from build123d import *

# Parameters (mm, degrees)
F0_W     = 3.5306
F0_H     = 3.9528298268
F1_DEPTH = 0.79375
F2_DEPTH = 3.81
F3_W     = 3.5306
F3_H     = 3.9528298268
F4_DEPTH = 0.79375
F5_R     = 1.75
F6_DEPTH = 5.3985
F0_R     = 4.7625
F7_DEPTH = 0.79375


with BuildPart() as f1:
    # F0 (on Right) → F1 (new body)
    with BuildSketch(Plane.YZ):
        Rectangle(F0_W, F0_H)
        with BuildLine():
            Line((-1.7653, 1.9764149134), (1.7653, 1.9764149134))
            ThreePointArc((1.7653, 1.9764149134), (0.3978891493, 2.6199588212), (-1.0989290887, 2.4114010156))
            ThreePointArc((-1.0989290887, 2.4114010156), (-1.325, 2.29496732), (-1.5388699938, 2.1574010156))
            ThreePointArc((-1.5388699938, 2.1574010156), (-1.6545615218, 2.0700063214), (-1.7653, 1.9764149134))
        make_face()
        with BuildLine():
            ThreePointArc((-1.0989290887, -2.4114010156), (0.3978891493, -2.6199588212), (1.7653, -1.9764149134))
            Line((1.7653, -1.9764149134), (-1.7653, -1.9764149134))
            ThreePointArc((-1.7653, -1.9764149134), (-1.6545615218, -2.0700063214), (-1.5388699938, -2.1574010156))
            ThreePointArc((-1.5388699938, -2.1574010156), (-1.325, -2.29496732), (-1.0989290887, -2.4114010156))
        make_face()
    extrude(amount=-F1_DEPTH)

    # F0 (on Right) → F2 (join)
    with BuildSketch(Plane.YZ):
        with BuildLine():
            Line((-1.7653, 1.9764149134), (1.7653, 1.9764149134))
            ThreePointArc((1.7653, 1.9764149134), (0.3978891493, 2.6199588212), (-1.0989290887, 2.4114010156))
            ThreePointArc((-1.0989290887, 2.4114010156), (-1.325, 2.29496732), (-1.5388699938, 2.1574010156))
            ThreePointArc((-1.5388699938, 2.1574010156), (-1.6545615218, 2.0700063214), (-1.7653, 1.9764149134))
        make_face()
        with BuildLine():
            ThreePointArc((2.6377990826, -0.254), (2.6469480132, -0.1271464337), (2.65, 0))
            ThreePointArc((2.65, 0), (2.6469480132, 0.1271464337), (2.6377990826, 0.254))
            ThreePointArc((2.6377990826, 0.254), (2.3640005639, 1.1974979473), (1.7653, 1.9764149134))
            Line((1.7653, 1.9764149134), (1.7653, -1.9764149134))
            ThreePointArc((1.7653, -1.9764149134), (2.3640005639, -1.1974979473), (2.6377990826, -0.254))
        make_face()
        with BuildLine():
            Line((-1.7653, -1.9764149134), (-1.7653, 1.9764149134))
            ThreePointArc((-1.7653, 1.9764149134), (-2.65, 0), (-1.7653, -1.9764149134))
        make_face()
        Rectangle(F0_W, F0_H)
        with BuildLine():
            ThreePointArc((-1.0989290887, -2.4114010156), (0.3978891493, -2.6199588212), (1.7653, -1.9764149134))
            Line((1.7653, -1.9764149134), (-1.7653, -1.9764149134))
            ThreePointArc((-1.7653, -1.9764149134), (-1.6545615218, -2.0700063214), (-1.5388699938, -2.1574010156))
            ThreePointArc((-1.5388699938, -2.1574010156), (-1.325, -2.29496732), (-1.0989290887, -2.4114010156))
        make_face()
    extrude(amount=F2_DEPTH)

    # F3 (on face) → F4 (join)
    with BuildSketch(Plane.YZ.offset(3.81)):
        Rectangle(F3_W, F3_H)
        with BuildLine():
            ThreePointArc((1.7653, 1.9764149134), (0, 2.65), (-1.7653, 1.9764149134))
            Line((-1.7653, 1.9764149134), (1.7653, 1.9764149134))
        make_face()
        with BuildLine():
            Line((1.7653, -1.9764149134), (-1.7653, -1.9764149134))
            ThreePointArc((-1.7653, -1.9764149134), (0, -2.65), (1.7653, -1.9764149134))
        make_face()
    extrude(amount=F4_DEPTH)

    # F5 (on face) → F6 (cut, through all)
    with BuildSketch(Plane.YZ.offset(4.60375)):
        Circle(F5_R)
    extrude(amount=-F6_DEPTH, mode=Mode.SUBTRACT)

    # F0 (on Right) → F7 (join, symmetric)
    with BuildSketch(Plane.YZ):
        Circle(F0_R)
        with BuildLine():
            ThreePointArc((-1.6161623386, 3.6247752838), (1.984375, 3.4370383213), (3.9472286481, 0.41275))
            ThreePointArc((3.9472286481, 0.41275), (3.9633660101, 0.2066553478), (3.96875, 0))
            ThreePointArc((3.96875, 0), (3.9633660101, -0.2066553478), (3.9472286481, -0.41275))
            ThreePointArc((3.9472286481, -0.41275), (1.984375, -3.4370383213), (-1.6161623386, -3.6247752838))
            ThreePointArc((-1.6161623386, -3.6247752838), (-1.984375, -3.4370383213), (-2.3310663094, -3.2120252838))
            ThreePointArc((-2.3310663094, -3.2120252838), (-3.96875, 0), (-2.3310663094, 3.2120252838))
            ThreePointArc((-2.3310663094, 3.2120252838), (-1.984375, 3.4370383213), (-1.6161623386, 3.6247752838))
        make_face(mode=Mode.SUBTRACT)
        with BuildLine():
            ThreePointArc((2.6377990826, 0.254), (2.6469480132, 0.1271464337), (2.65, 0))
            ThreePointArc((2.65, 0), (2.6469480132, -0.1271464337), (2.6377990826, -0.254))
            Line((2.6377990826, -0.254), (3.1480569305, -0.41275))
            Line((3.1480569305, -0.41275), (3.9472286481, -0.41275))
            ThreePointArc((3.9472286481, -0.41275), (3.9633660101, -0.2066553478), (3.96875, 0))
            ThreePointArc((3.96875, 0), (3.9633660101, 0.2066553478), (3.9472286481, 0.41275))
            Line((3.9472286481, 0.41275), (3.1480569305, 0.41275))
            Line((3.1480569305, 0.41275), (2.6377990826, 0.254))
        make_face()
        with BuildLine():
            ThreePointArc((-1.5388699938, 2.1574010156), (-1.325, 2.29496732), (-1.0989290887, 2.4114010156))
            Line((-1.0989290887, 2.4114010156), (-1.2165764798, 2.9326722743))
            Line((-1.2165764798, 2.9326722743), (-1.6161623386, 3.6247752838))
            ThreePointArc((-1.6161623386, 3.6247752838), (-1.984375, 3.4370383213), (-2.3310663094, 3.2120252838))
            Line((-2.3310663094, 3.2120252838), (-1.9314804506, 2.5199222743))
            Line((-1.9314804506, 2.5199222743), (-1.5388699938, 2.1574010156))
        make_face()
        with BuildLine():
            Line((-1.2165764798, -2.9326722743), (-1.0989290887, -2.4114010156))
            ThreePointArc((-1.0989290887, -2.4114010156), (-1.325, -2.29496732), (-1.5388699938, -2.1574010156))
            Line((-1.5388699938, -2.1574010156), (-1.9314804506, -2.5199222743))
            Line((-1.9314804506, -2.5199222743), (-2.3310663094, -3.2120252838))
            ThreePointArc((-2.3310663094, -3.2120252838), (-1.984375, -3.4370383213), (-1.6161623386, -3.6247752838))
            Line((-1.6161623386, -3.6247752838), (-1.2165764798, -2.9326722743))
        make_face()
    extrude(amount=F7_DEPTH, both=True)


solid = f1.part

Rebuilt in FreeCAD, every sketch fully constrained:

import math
import FreeCAD as App
import Part
import Sketcher
from FreeCAD import Vector
Q = App.Units.Quantity

doc = App.newDocument("Part")
body = doc.addObject("PartDesign::Body", "Body")

sketch1 = body.newObject("Sketcher::SketchObject", "Sketch")
sketch1.AttachmentSupport = (doc.getObject("YZ_Plane"), [""])
sketch1.MapMode = "FlatFace"
sketch1.addGeometry(Part.LineSegment(Vector(-1.77, 1.98, 0), Vector(-1.77, -1.98, 0)), False)
sketch1.addGeometry(Part.ArcOfCircle(Part.Circle(Vector(0, 0, 0), Vector(0, 0, 1), 2.65), math.radians(-131.77), math.radians(-125.5)), False)
sketch1.addGeometry(Part.ArcOfCircle(Part.Circle(Vector(0, 0, 0), Vector(0, 0, 1), 2.65), math.radians(-125.5), math.radians(-114.5)), False)
sketch1.addGeometry(Part.ArcOfCircle(Part.Circle(Vector(0, 0, 0), Vector(0, 0, 1), 2.65), math.radians(-114), math.radians(-48)), False)
sketch1.addGeometry(Part.LineSegment(Vector(1.77, -1.98, 0), Vector(1.77, 1.98, 0)), False)
sketch1.addGeometry(Part.ArcOfCircle(Part.Circle(Vector(0, 0, 0), Vector(0, 0, 1), 2.65), math.radians(48), math.radians(114)), False)
sketch1.addGeometry(Part.ArcOfCircle(Part.Circle(Vector(0, 0, 0), Vector(0, 0, 1), 2.65), math.radians(114.5), math.radians(125.5)), False)
sketch1.addGeometry(Part.ArcOfCircle(Part.Circle(Vector(0, 0, 0), Vector(0, 0, 1), 2.65), math.radians(125.5), math.radians(131.77)), False)
sketch1.addConstraint(Sketcher.Constraint("Coincident", 0, 2, 1, 1))
sketch1.addConstraint(Sketcher.Constraint("Tangent", 1, 2, 2, 1))
sketch1.addConstraint(Sketcher.Constraint("Tangent", 2, 2, 3, 1))
sketch1.addConstraint(Sketcher.Constraint("Coincident", 3, 2, 4, 1))
sketch1.addConstraint(Sketcher.Constraint("Coincident", 4, 2, 5, 1))
sketch1.addConstraint(Sketcher.Constraint("Tangent", 5, 2, 6, 1))
sketch1.addConstraint(Sketcher.Constraint("Tangent", 6, 2, 7, 1))
sketch1.addConstraint(Sketcher.Constraint("Coincident", 7, 2, 0, 1))
sketch1.addConstraint(Sketcher.Constraint("Vertical", 0))
sketch1.addConstraint(Sketcher.Constraint("Vertical", 4))
sketch1.addConstraint(Sketcher.Constraint("Coincident", 1, 3, -1, 1))
sketch1.addConstraint(Sketcher.Constraint("Coincident", 3, 3, -1, 1))
sketch1.addConstraint(Sketcher.Constraint("Coincident", 5, 3, -1, 1))
sketch1.addConstraint(Sketcher.Constraint("Coincident", 7, 3, -1, 1))
sketch1.addConstraint(Sketcher.Constraint("Equal", 3, 5))
sketch1.addConstraint(Sketcher.Constraint("Horizontal", 0, 2, 3, 2))
sketch1.addConstraint(Sketcher.Constraint("Vertical", 2, 2, 5, 2))
sketch1.addConstraint(Sketcher.Constraint("Vertical", 1, 2, 6, 2))
sketch1.addConstraint(Sketcher.Constraint("Radius", 1, Q("2.65 mm")))
sketch1.addConstraint(Sketcher.Constraint("DistanceY", 2, 2, 1, 2, Q("0.01 in")))
sketch1.addConstraint(Sketcher.Constraint("DistanceX", 0, 2, -1, 1, Q("0.0695 in")))
sketch1.addConstraint(Sketcher.Constraint("DistanceY", 1, 2, -1, 1, Q("2.157401 mm")))
pad1 = body.newObject("PartDesign::Pad", "Pad")
pad1.Profile = sketch1
pad1.Length = Q("0.03125 in")
pad1.Reversed = True

sketch2 = body.newObject("Sketcher::SketchObject", "Sketch001")
sketch2.AttachmentSupport = (doc.getObject("YZ_Plane"), [""])
sketch2.MapMode = "FlatFace"
sketch2.addGeometry(Part.ArcOfCircle(Part.Circle(Vector(0, 0, 0), Vector(0, 0, 1), 2.65), math.radians(48), math.radians(114)), False)
sketch2.addGeometry(Part.ArcOfCircle(Part.Circle(Vector(0, 0, 0), Vector(0, 0, 1), 2.65), math.radians(114.5), math.radians(125.5)), False)
sketch2.addGeometry(Part.ArcOfCircle(Part.Circle(Vector(0, 0, 0), Vector(0, 0, 1), 2.65), math.radians(125.5), math.radians(131.77)), False)
sketch2.addGeometry(Part.ArcOfCircle(Part.Circle(Vector(0, 0, 0), Vector(0, 0, 1), 2.65), math.radians(132), math.radians(228)), False)
sketch2.addGeometry(Part.ArcOfCircle(Part.Circle(Vector(0, 0, 0), Vector(0, 0, 1), 2.65), math.radians(-131.77), math.radians(-125.5)), False)
sketch2.addGeometry(Part.ArcOfCircle(Part.Circle(Vector(0, 0, 0), Vector(0, 0, 1), 2.65), math.radians(-125.5), math.radians(-114.5)), False)
sketch2.addGeometry(Part.ArcOfCircle(Part.Circle(Vector(0, 0, 0), Vector(0, 0, 1), 2.65), math.radians(-114), math.radians(-48)), False)
sketch2.addGeometry(Part.ArcOfCircle(Part.Circle(Vector(0, 0, 0), Vector(0, 0, 1), 2.65), math.radians(-48), math.radians(-6)), False)
sketch2.addGeometry(Part.ArcOfCircle(Part.Circle(Vector(0, 0, 0), Vector(0, 0, 1), 2.65), math.radians(-5.5), math.radians(0)), False)
sketch2.addGeometry(Part.ArcOfCircle(Part.Circle(Vector(0, 0, 0), Vector(0, 0, 1), 2.65), math.radians(0), math.radians(5.5)), False)
sketch2.addGeometry(Part.ArcOfCircle(Part.Circle(Vector(0, 0, 0), Vector(0, 0, 1), 2.65), math.radians(6), math.radians(48)), False)
sketch2.addConstraint(Sketcher.Constraint("Tangent", 0, 2, 1, 1))
sketch2.addConstraint(Sketcher.Constraint("Tangent", 1, 2, 2, 1))
sketch2.addConstraint(Sketcher.Constraint("Tangent", 2, 2, 3, 1))
sketch2.addConstraint(Sketcher.Constraint("Tangent", 3, 2, 4, 1))
sketch2.addConstraint(Sketcher.Constraint("Tangent", 4, 2, 5, 1))
sketch2.addConstraint(Sketcher.Constraint("Tangent", 5, 2, 6, 1))
sketch2.addConstraint(Sketcher.Constraint("Tangent", 6, 2, 7, 1))
sketch2.addConstraint(Sketcher.Constraint("Tangent", 7, 2, 8, 1))
sketch2.addConstraint(Sketcher.Constraint("Tangent", 8, 2, 9, 1))
sketch2.addConstraint(Sketcher.Constraint("Tangent", 9, 2, 10, 1))
sketch2.addConstraint(Sketcher.Constraint("Tangent", 10, 2, 0, 1))
sketch2.addConstraint(Sketcher.Constraint("Coincident", 0, 3, -1, 1))
sketch2.addConstraint(Sketcher.Constraint("Coincident", 2, 3, -1, 1))
sketch2.addConstraint(Sketcher.Constraint("Coincident", 4, 3, -1, 1))
sketch2.addConstraint(Sketcher.Constraint("Coincident", 6, 3, -1, 1))
sketch2.addConstraint(Sketcher.Constraint("Coincident", 8, 3, -1, 1))
sketch2.addConstraint(Sketcher.Constraint("PointOnObject", 8, 2, -1))
sketch2.addConstraint(Sketcher.Constraint("Horizontal", 3, 2, 6, 2))
sketch2.addConstraint(Sketcher.Constraint("Horizontal", 2, 2, 10, 2))
sketch2.addConstraint(Sketcher.Constraint("Vertical", 2, 2, 3, 2))
sketch2.addConstraint(Sketcher.Constraint("Vertical", 1, 2, 4, 2))
sketch2.addConstraint(Sketcher.Constraint("Vertical", 0, 2, 5, 2))
sketch2.addConstraint(Sketcher.Constraint("Vertical", 7, 2, 9, 2))
sketch2.addConstraint(Sketcher.Constraint("DistanceY", 7, 2, -1, 1, Q("0.01 in")))
sketch2.addConstraint(Sketcher.Constraint("Radius", 0, Q("2.65 mm")))
sketch2.addConstraint(Sketcher.Constraint("DistanceY", 1, 2, 0, 2, Q("0.01 in")))
sketch2.addConstraint(Sketcher.Constraint("DistanceX", 2, 2, -1, 1, Q("0.0695 in")))
sketch2.addConstraint(Sketcher.Constraint("DistanceY", -1, 1, 0, 2, Q("2.411401 mm")))
pad2 = body.newObject("PartDesign::Pad", "Pad001")
pad2.Profile = sketch2
pad2.Length = Q("0.15 in")

sketch3 = body.newObject("Sketcher::SketchObject", "Sketch002")
sketch3.AttachmentSupport = (doc.getObject("YZ_Plane"), [""])
sketch3.MapMode = "FlatFace"
sketch3.AttachmentOffset = App.Placement(Vector(0, 0, 0.15 * 25.4), App.Rotation())
sketch3.addGeometry(Part.LineSegment(Vector(-1.8, 2, 0), Vector(-1.8, -2, 0)), False)
sketch3.addGeometry(Part.ArcOfCircle(Part.Circle(Vector(0, 0, 0), Vector(0, 0, 1), 2.6), math.radians(-132), math.radians(-48)), False)
sketch3.addGeometry(Part.LineSegment(Vector(1.8, -2, 0), Vector(1.8, 2, 0)), False)
sketch3.addGeometry(Part.ArcOfCircle(Part.Circle(Vector(0, 0, 0), Vector(0, 0, 1), 2.6), math.radians(48), math.radians(132)), False)
sketch3.addConstraint(Sketcher.Constraint("Coincident", 0, 2, 1, 1))
sketch3.addConstraint(Sketcher.Constraint("Coincident", 1, 2, 2, 1))
sketch3.addConstraint(Sketcher.Constraint("Coincident", 2, 2, 3, 1))
sketch3.addConstraint(Sketcher.Constraint("Coincident", 3, 2, 0, 1))
sketch3.addConstraint(Sketcher.Constraint("Vertical", 0))
sketch3.addConstraint(Sketcher.Constraint("Vertical", 2))
sketch3.addConstraint(Sketcher.Constraint("Coincident", 1, 3, -1, 1))
sketch3.addConstraint(Sketcher.Constraint("Coincident", 3, 3, -1, 1))
sketch3.addConstraint(Sketcher.Constraint("Equal", 1, 3))
sketch3.addConstraint(Sketcher.Constraint("Horizontal", 0, 2, 1, 2))
sketch3.addConstraint(Sketcher.Constraint("Radius", 1, Q("2.65 mm")))
sketch3.addConstraint(Sketcher.Constraint("DistanceX", 0, 2, 1, 2, Q("0.139 in")))
pad3 = body.newObject("PartDesign::Pad", "Pad002")
pad3.Profile = sketch3
pad3.Length = Q("0.03125 in")

sketch4 = body.newObject("Sketcher::SketchObject", "Sketch003")
sketch4.AttachmentSupport = (doc.getObject("YZ_Plane"), [""])
sketch4.MapMode = "FlatFace"
sketch4.AttachmentOffset = App.Placement(Vector(0, 0, 4.60375), App.Rotation())
sketch4.addGeometry(Part.Circle(Vector(0, 0, 0), Vector(0, 0, 1), 1.8), False)
sketch4.addConstraint(Sketcher.Constraint("Coincident", 0, 3, -1, 1))
sketch4.addConstraint(Sketcher.Constraint("Diameter", 0, Q("3.5 mm")))
pocket1 = body.newObject("PartDesign::Pocket", "Pocket")
pocket1.Profile = sketch4
pocket1.Type = "ThroughAll"

sketch5 = body.newObject("Sketcher::SketchObject", "Sketch004")
sketch5.AttachmentSupport = (doc.getObject("YZ_Plane"), [""])
sketch5.MapMode = "FlatFace"
sketch5.addGeometry(Part.Circle(Vector(0, 0, 0), Vector(0, 0, 1), 4.76), False)
sketch5.addGeometry(Part.ArcOfCircle(Part.Circle(Vector(0, 0, 0), Vector(0, 0, 1), 3.97), math.radians(6), math.radians(114)), False)
sketch5.addGeometry(Part.LineSegment(Vector(3.95, 0.41, 0), Vector(3.15, 0.41, 0)), False)
sketch5.addGeometry(Part.LineSegment(Vector(3.15, 0.41, 0), Vector(2.64, 0.25, 0)), False)
sketch5.addGeometry(Part.ArcOfCircle(Part.Circle(Vector(0, 0, 0), Vector(0, 0, 1), 2.65), math.radians(0), math.radians(5.5)), False)
sketch5.addGeometry(Part.ArcOfCircle(Part.Circle(Vector(0, 0, 0), Vector(0, 0, 1), 2.65), math.radians(-5.5), math.radians(0)), False)
sketch5.addGeometry(Part.LineSegment(Vector(2.64, -0.25, 0), Vector(3.15, -0.41, 0)), False)
sketch5.addGeometry(Part.LineSegment(Vector(3.15, -0.41, 0), Vector(3.95, -0.41, 0)), False)
sketch5.addGeometry(Part.ArcOfCircle(Part.Circle(Vector(0, 0, 0), Vector(0, 0, 1), 3.97), math.radians(-114), math.radians(-6)), False)
sketch5.addGeometry(Part.LineSegment(Vector(-1.62, -3.62, 0), Vector(-1.22, -2.93, 0)), False)
sketch5.addGeometry(Part.LineSegment(Vector(-1.22, -2.93, 0), Vector(-1.1, -2.41, 0)), False)
sketch5.addGeometry(Part.ArcOfCircle(Part.Circle(Vector(0, 0, 0), Vector(0, 0, 1), 2.65), math.radians(-125.5), math.radians(-114.5)), False)
sketch5.addGeometry(Part.LineSegment(Vector(-1.54, -2.16, 0), Vector(-1.93, -2.52, 0)), False)
sketch5.addGeometry(Part.LineSegment(Vector(-1.93, -2.52, 0), Vector(-2.33, -3.21, 0)), False)
sketch5.addGeometry(Part.ArcOfCircle(Part.Circle(Vector(0, 0, 0), Vector(0, 0, 1), 3.97), math.radians(126), math.radians(234)), False)
sketch5.addGeometry(Part.LineSegment(Vector(-2.33, 3.21, 0), Vector(-1.93, 2.52, 0)), False)
sketch5.addGeometry(Part.LineSegment(Vector(-1.93, 2.52, 0), Vector(-1.54, 2.16, 0)), False)
sketch5.addGeometry(Part.ArcOfCircle(Part.Circle(Vector(0, 0, 0), Vector(0, 0, 1), 2.65), math.radians(114.5), math.radians(125.5)), False)
sketch5.addGeometry(Part.LineSegment(Vector(-1.1, 2.41, 0), Vector(-1.22, 2.93, 0)), False)
sketch5.addGeometry(Part.LineSegment(Vector(-1.22, 2.93, 0), Vector(-1.62, 3.62, 0)), False)
sketch5.addConstraint(Sketcher.Constraint("Coincident", 1, 1, 2, 1))
sketch5.addConstraint(Sketcher.Constraint("Coincident", 2, 2, 3, 1))
sketch5.addConstraint(Sketcher.Constraint("Coincident", 3, 2, 4, 2))
sketch5.addConstraint(Sketcher.Constraint("Tangent", 4, 1, 5, 2))
sketch5.addConstraint(Sketcher.Constraint("Coincident", 5, 1, 6, 1))
sketch5.addConstraint(Sketcher.Constraint("Coincident", 6, 2, 7, 1))
sketch5.addConstraint(Sketcher.Constraint("Coincident", 7, 2, 8, 2))
sketch5.addConstraint(Sketcher.Constraint("Coincident", 8, 1, 9, 1))
sketch5.addConstraint(Sketcher.Constraint("Coincident", 9, 2, 10, 1))
sketch5.addConstraint(Sketcher.Constraint("Coincident", 10, 2, 11, 2))
sketch5.addConstraint(Sketcher.Constraint("Coincident", 11, 1, 12, 1))
sketch5.addConstraint(Sketcher.Constraint("Coincident", 12, 2, 13, 1))
sketch5.addConstraint(Sketcher.Constraint("Coincident", 13, 2, 14, 2))
sketch5.addConstraint(Sketcher.Constraint("Coincident", 14, 1, 15, 1))
sketch5.addConstraint(Sketcher.Constraint("Coincident", 15, 2, 16, 1))
sketch5.addConstraint(Sketcher.Constraint("Coincident", 16, 2, 17, 2))
sketch5.addConstraint(Sketcher.Constraint("Coincident", 17, 1, 18, 1))
sketch5.addConstraint(Sketcher.Constraint("Coincident", 18, 2, 19, 1))
sketch5.addConstraint(Sketcher.Constraint("Coincident", 19, 2, 1, 2))
sketch5.addConstraint(Sketcher.Constraint("Horizontal", 2))
sketch5.addConstraint(Sketcher.Constraint("Horizontal", 7))
sketch5.addConstraint(Sketcher.Constraint("Coincident", 0, 3, -1, 1))
sketch5.addConstraint(Sketcher.Constraint("Coincident", 1, 3, -1, 1))
sketch5.addConstraint(Sketcher.Constraint("Coincident", 4, 3, -1, 1))
sketch5.addConstraint(Sketcher.Constraint("Coincident", 8, 3, -1, 1))
sketch5.addConstraint(Sketcher.Constraint("Coincident", 11, 3, -1, 1))
sketch5.addConstraint(Sketcher.Constraint("Coincident", 14, 3, -1, 1))
sketch5.addConstraint(Sketcher.Constraint("Coincident", 17, 3, -1, 1))
sketch5.addConstraint(Sketcher.Constraint("Equal", 4, 5))
sketch5.addConstraint(Sketcher.Constraint("Equal", 1, 8))
sketch5.addConstraint(Sketcher.Constraint("Equal", 5, 11))
sketch5.addConstraint(Sketcher.Constraint("Equal", 8, 14))
sketch5.addConstraint(Sketcher.Constraint("Equal", 11, 17))
sketch5.addConstraint(Sketcher.Constraint("Symmetric", 2, 2, 6, 2, -1))
sketch5.addConstraint(Sketcher.Constraint("Symmetric", 12, 2, 15, 2, -1))
sketch5.addConstraint(Sketcher.Constraint("Symmetric", 9, 2, 18, 2, -1))
sketch5.addConstraint(Sketcher.Constraint("PointOnObject", 4, 1, -1))
sketch5.addConstraint(Sketcher.Constraint("Parallel", 9, 13))
sketch5.addConstraint(Sketcher.Constraint("Parallel", 15, 19))
sketch5.addConstraint(Sketcher.Constraint("Vertical", 3, 2, 5, 1))
sketch5.addConstraint(Sketcher.Constraint("Vertical", 13, 2, 14, 1))
sketch5.addConstraint(Sketcher.Constraint("Vertical", 11, 1, 16, 2))
sketch5.addConstraint(Sketcher.Constraint("Vertical", 10, 2, 17, 1))
sketch5.addConstraint(Sketcher.Constraint("Equal", 6, 10))
sketch5.addConstraint(Sketcher.Constraint("Equal", 10, 12))
sketch5.addConstraint(Sketcher.Constraint("Equal", 9, 13))
sketch5.addConstraint(Sketcher.Constraint("Diameter", 0, Q("0.375 in")))
sketch5.addConstraint(Sketcher.Constraint("Angle", 9, Q("60 deg")))
sketch5.addConstraint(Sketcher.Constraint("Radius", 1, Q("0.15625 in")))
sketch5.addConstraint(Sketcher.Constraint("DistanceY", -1, 1, 3, 2, Q("0.01 in")))
sketch5.addConstraint(Sketcher.Constraint("Radius", 4, Q("2.65 mm")))
sketch5.addConstraint(Sketcher.Constraint("DistanceY", 10, 2, 11, 1, Q("0.01 in")))
sketch5.addConstraint(Sketcher.Constraint("DistanceY", 6, 2, 2, 2, Q("0.0325 in")))
sketch5.addConstraint(Sketcher.Constraint("DistanceX", 2, 2, 2, 1, Q("0.799172 mm")))
sketch5.addConstraint(Sketcher.Constraint("DistanceY", 10, 2, -1, 1, Q("2.411401 mm")))
sketch5.addConstraint(Sketcher.Constraint("Distance", 9, Q("0.799172 mm")))
pad4 = body.newObject("PartDesign::Pad", "Pad003")
pad4.Profile = sketch5
pad4.Length = Q("0.0625 in")
pad4.Midplane = True

doc.recompute()
